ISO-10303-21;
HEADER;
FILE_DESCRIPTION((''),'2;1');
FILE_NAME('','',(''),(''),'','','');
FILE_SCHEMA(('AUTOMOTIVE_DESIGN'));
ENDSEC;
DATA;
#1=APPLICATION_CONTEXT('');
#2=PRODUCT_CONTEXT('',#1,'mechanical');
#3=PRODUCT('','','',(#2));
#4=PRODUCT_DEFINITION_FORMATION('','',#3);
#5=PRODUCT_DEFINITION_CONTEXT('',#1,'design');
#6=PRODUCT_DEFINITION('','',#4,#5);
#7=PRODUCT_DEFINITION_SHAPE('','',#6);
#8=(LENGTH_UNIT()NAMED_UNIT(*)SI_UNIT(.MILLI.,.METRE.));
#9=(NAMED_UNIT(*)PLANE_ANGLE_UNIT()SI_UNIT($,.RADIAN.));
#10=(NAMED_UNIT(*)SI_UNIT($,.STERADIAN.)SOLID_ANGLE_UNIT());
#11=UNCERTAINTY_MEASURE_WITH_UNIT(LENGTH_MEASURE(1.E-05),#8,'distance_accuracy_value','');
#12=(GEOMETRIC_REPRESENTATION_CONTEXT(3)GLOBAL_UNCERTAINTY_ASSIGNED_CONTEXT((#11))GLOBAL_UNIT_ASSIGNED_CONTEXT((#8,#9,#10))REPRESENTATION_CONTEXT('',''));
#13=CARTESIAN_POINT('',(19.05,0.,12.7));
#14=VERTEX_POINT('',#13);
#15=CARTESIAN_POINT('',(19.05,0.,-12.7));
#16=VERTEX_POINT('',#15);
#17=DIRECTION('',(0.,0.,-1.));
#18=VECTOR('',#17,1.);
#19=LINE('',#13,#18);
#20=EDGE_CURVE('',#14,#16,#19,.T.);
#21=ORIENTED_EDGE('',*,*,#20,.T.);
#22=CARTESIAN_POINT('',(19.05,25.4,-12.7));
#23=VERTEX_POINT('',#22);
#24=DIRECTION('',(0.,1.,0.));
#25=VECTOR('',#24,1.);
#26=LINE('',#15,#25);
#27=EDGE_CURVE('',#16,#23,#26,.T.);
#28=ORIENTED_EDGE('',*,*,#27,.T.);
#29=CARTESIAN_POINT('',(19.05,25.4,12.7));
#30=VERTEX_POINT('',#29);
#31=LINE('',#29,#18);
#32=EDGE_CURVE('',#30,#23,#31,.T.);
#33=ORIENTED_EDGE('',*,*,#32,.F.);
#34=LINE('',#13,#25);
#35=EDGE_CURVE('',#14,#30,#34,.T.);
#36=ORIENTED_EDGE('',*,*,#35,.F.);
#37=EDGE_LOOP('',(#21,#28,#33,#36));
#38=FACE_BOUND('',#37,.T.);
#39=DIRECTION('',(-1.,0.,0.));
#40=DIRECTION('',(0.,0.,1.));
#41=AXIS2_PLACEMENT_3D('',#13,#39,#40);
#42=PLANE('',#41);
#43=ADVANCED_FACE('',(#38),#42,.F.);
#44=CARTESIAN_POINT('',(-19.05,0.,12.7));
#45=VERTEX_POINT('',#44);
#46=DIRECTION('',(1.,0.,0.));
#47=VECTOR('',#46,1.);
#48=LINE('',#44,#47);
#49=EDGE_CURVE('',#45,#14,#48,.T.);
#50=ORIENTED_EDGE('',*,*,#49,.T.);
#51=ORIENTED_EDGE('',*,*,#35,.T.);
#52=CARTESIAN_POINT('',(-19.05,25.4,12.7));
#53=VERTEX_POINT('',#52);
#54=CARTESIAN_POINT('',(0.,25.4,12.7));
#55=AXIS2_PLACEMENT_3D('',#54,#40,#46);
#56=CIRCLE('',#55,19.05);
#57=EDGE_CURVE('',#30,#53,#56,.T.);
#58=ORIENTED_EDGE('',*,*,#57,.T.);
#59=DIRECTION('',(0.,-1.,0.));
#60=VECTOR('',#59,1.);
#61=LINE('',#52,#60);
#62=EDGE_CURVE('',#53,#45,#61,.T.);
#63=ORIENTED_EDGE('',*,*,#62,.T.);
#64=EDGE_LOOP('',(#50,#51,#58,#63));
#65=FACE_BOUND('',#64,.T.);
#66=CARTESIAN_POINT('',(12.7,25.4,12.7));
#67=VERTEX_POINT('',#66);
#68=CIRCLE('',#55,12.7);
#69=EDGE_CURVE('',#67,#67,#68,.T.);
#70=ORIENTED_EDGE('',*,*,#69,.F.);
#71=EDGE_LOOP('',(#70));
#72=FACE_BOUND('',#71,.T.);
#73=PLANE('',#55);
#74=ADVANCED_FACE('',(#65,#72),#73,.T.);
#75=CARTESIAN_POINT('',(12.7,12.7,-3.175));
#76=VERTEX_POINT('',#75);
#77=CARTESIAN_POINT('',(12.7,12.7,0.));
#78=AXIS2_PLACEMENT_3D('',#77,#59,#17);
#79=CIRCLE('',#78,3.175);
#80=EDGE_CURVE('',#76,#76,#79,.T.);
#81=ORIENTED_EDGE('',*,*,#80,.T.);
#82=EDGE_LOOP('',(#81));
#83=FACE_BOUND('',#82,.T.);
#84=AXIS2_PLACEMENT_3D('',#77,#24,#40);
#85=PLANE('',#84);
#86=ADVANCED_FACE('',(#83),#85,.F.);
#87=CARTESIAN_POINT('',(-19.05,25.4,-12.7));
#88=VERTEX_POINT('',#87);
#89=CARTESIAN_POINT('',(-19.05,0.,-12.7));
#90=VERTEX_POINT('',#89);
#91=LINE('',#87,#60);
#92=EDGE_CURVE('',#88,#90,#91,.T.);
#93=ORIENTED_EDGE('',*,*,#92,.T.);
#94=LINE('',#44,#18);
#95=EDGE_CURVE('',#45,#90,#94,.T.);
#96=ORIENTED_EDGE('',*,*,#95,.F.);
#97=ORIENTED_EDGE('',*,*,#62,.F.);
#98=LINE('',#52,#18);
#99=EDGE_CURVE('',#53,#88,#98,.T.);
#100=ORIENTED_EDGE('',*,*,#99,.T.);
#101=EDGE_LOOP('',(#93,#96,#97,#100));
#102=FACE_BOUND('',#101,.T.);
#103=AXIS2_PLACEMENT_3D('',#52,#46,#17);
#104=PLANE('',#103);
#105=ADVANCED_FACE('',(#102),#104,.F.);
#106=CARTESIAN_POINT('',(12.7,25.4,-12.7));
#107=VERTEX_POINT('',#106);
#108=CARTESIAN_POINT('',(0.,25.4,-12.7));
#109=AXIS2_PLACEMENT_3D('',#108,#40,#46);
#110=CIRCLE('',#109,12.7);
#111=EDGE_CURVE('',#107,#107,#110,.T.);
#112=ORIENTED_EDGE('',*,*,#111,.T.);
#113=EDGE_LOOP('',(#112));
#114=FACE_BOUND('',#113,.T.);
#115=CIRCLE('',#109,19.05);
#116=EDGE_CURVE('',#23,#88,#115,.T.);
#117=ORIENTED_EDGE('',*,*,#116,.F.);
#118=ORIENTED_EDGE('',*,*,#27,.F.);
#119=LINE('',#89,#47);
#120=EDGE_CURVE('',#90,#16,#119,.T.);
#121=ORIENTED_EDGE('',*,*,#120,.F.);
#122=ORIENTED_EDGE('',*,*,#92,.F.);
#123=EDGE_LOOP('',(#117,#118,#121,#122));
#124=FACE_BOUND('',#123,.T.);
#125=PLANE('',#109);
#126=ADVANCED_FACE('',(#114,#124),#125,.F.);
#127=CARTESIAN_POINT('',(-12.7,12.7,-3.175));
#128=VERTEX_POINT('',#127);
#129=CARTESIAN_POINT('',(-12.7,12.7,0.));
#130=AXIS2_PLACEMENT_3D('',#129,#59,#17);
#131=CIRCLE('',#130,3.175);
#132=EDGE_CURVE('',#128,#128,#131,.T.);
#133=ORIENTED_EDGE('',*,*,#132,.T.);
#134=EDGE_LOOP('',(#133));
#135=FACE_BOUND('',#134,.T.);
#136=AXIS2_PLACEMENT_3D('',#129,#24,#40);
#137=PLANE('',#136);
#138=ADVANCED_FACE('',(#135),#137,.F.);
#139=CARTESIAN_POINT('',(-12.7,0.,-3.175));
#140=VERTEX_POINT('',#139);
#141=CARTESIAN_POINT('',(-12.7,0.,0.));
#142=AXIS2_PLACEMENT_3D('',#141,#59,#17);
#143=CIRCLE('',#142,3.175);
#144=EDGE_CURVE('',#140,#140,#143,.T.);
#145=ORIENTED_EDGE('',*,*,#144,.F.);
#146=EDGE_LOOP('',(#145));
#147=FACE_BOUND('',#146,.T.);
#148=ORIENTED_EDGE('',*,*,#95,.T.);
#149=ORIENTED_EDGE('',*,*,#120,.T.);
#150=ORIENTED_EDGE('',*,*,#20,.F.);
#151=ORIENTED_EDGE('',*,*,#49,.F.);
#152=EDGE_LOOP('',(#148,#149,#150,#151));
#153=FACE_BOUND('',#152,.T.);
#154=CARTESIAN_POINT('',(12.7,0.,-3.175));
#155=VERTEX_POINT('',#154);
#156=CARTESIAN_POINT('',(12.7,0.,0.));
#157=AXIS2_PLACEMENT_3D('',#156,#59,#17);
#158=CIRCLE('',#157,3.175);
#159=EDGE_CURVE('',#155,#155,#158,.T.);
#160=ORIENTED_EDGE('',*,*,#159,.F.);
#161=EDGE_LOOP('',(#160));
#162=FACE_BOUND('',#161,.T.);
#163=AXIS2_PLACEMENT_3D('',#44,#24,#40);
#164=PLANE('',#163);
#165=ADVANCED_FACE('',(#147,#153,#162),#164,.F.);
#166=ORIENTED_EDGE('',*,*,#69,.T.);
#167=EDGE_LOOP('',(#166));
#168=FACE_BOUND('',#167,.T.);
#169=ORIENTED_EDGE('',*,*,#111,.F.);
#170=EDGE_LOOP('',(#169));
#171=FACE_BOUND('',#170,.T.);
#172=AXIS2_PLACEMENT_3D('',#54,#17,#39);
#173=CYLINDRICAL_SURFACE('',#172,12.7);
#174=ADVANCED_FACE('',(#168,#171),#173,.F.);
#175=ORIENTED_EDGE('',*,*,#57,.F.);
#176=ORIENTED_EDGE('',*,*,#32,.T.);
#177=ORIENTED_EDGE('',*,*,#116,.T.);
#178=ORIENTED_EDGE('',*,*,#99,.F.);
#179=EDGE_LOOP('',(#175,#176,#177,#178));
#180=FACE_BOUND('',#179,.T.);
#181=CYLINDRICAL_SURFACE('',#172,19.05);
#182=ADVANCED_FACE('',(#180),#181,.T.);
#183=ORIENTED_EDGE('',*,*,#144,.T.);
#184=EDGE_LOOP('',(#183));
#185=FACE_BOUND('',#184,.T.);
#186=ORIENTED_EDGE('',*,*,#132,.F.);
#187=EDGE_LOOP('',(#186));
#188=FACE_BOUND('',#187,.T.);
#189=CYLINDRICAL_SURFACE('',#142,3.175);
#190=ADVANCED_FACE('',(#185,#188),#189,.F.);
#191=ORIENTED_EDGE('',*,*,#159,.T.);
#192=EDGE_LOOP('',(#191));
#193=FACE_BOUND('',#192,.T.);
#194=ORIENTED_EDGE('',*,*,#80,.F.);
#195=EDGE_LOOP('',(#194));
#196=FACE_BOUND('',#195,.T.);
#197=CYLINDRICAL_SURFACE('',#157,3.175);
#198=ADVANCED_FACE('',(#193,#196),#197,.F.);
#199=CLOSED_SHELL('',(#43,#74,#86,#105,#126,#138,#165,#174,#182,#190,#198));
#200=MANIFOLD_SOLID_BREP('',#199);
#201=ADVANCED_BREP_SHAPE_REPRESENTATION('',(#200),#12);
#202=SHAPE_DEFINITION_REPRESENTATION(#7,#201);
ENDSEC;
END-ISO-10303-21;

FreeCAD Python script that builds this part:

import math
import FreeCAD as App
import Part
import Sketcher
from FreeCAD import Vector
Q = App.Units.Quantity

doc = App.newDocument("Part")
body = doc.addObject("PartDesign::Body", "Body")

# Sketch on XY plane
sketch1 = body.newObject("Sketcher::SketchObject", "Sketch")
sketch1.AttachmentSupport = (doc.getObject("XY_Plane"), [""])
sketch1.MapMode = "FlatFace"
sketch1.addGeometry([
    Part.LineSegment(Vector(-19.05, 25.4, 0), Vector(-19.05, 0, 0)),  # 0
    Part.LineSegment(Vector(-19.05, 0, 0), Vector(19.05, 0, 0)),  # 1
    Part.LineSegment(Vector(19.05, 0, 0), Vector(19.05, 25.4, 0)),  # 2
    Part.ArcOfCircle(Part.Circle(Vector(0, 25.4, 0), Vector(0, 0, 1), 19.05), math.radians(0), math.radians(180)),  # 3
    Part.Circle(Vector(0, 25.4, 0), Vector(0, 0, 1), 12.7),  # 4
], False)
sketch1.addConstraint([
    Sketcher.Constraint("Coincident", 0, 2, 1, 1),
    Sketcher.Constraint("Coincident", 1, 2, 2, 1),
    Sketcher.Constraint("Tangent", 2, 2, 3, 1),
    Sketcher.Constraint("Tangent", 3, 2, 0, 1),
    Sketcher.Constraint("Vertical", 0),
    Sketcher.Constraint("Horizontal", 1),
    Sketcher.Constraint("Vertical", 2),
    Sketcher.Constraint("Coincident", 4, 3, 3, 3),
    Sketcher.Constraint("Symmetric", 0, 2, 1, 2, -1, 1),
    Sketcher.Constraint("Diameter", 4, Q("1 in")),
    Sketcher.Constraint("DistanceY", 0, 2, 0, 1, Q("1 in")),
    Sketcher.Constraint("Radius", 3, Q("0.75 in")),
])
pad1 = body.newObject("PartDesign::Pad", "Pad")
pad1.Profile = sketch1
pad1.Length = Q("1 in")
pad1.Midplane = True

# Sketch on XZ plane
sketch2 = body.newObject("Sketcher::SketchObject", "Sketch001")
sketch2.AttachmentSupport = (doc.getObject("XZ_Plane"), [""])
sketch2.MapMode = "FlatFace"
sketch2.addGeometry([
    Part.Circle(Vector(12.7, 0, 0), Vector(0, 0, 1), 3.175),
    Part.Circle(Vector(-12.7, 0, 0), Vector(0, 0, 1), 3.175),
], False)
sketch2.addConstraint([
    Sketcher.Constraint("Equal", 0, 1),
    Sketcher.Constraint("Symmetric", 0, 3, 1, 3, -1, 1),
    Sketcher.Constraint("PointOnObject", 0, 3, -1),
    Sketcher.Constraint("Diameter", 0, Q("0.25 in")),
    Sketcher.Constraint("DistanceX", 1, 3, 0, 3, Q("1 in")),
])
doc.recompute()
hole = body.newObject("PartDesign::Hole", "Hole")
hole.Profile = sketch2
hole.ThreadType = "None"
hole.Diameter = Q("0.25 in")
hole.DepthType = "Dimension"
hole.Depth = Q("0.5 in")
hole.DrillPoint = "Flat"

doc.recompute()
